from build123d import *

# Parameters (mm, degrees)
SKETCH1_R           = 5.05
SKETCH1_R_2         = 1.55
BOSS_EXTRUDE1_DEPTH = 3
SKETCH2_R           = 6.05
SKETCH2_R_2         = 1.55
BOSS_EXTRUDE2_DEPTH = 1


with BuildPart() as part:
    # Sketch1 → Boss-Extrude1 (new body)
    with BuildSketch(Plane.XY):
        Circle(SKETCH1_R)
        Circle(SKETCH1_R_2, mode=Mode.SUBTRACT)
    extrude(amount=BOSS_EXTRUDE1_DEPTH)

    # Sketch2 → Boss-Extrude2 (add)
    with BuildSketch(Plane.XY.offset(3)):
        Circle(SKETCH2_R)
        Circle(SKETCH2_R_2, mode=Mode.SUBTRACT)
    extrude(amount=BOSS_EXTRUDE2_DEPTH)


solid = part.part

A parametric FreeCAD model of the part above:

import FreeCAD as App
import Part
import Sketcher

V = App.Vector

doc = App.newDocument("Part")
body = doc.addObject("PartDesign::Body", "Body")

# Sketch on XY plane
sketch1 = body.newObject("Sketcher::SketchObject", "Sketch")
sketch1.AttachmentSupport = (doc.getObject("XY_Plane"), [""])
sketch1.MapMode = "FlatFace"
sketch1.addGeometry(Part.Circle(V(0, 0, 0), V(0, 0, 1), 5), False)
sketch1.addGeometry(Part.Circle(V(0, 0, 0), V(0, 0, 1), 1.6), False)
sketch1.addConstraint(Sketcher.Constraint("Coincident", 0, 3, -1, 1))
sketch1.addConstraint(Sketcher.Constraint("Coincident", 1, 3, -1, 1))
sketch1.addConstraint(Sketcher.Constraint("Diameter", 0, 10.1))
sketch1.addConstraint(Sketcher.Constraint("Diameter", 1, 3.1))
pad1 = body.newObject("PartDesign::Pad", "Pad")
pad1.Profile = sketch1
pad1.Length = 3

# Sketch on XY plane
sketch2 = body.newObject("Sketcher::SketchObject", "Sketch001")
sketch2.AttachmentSupport = (doc.getObject("XY_Plane"), [""])
sketch2.MapMode = "FlatFace"
sketch2.AttachmentOffset = App.Placement(V(0, 0, 3), App.Rotation())
sketch2.addGeometry(Part.Circle(V(0, 0, 0), V(0, 0, 1), 6), False)
sketch2.addGeometry(Part.Circle(V(0, 0, 0), V(0, 0, 1), 1.6), False)
sketch2.addConstraint(Sketcher.Constraint("Coincident", 0, 3, -1, 1))
sketch2.addConstraint(Sketcher.Constraint("Coincident", 1, 3, -1, 1))
sketch2.addConstraint(Sketcher.Constraint("Diameter", 0, 12.1))
sketch2.addConstraint(Sketcher.Constraint("Diameter", 1, 3.1))
pad2 = body.newObject("PartDesign::Pad", "Pad001")
pad2.Profile = sketch2
pad2.Length = 1

doc.recompute()
